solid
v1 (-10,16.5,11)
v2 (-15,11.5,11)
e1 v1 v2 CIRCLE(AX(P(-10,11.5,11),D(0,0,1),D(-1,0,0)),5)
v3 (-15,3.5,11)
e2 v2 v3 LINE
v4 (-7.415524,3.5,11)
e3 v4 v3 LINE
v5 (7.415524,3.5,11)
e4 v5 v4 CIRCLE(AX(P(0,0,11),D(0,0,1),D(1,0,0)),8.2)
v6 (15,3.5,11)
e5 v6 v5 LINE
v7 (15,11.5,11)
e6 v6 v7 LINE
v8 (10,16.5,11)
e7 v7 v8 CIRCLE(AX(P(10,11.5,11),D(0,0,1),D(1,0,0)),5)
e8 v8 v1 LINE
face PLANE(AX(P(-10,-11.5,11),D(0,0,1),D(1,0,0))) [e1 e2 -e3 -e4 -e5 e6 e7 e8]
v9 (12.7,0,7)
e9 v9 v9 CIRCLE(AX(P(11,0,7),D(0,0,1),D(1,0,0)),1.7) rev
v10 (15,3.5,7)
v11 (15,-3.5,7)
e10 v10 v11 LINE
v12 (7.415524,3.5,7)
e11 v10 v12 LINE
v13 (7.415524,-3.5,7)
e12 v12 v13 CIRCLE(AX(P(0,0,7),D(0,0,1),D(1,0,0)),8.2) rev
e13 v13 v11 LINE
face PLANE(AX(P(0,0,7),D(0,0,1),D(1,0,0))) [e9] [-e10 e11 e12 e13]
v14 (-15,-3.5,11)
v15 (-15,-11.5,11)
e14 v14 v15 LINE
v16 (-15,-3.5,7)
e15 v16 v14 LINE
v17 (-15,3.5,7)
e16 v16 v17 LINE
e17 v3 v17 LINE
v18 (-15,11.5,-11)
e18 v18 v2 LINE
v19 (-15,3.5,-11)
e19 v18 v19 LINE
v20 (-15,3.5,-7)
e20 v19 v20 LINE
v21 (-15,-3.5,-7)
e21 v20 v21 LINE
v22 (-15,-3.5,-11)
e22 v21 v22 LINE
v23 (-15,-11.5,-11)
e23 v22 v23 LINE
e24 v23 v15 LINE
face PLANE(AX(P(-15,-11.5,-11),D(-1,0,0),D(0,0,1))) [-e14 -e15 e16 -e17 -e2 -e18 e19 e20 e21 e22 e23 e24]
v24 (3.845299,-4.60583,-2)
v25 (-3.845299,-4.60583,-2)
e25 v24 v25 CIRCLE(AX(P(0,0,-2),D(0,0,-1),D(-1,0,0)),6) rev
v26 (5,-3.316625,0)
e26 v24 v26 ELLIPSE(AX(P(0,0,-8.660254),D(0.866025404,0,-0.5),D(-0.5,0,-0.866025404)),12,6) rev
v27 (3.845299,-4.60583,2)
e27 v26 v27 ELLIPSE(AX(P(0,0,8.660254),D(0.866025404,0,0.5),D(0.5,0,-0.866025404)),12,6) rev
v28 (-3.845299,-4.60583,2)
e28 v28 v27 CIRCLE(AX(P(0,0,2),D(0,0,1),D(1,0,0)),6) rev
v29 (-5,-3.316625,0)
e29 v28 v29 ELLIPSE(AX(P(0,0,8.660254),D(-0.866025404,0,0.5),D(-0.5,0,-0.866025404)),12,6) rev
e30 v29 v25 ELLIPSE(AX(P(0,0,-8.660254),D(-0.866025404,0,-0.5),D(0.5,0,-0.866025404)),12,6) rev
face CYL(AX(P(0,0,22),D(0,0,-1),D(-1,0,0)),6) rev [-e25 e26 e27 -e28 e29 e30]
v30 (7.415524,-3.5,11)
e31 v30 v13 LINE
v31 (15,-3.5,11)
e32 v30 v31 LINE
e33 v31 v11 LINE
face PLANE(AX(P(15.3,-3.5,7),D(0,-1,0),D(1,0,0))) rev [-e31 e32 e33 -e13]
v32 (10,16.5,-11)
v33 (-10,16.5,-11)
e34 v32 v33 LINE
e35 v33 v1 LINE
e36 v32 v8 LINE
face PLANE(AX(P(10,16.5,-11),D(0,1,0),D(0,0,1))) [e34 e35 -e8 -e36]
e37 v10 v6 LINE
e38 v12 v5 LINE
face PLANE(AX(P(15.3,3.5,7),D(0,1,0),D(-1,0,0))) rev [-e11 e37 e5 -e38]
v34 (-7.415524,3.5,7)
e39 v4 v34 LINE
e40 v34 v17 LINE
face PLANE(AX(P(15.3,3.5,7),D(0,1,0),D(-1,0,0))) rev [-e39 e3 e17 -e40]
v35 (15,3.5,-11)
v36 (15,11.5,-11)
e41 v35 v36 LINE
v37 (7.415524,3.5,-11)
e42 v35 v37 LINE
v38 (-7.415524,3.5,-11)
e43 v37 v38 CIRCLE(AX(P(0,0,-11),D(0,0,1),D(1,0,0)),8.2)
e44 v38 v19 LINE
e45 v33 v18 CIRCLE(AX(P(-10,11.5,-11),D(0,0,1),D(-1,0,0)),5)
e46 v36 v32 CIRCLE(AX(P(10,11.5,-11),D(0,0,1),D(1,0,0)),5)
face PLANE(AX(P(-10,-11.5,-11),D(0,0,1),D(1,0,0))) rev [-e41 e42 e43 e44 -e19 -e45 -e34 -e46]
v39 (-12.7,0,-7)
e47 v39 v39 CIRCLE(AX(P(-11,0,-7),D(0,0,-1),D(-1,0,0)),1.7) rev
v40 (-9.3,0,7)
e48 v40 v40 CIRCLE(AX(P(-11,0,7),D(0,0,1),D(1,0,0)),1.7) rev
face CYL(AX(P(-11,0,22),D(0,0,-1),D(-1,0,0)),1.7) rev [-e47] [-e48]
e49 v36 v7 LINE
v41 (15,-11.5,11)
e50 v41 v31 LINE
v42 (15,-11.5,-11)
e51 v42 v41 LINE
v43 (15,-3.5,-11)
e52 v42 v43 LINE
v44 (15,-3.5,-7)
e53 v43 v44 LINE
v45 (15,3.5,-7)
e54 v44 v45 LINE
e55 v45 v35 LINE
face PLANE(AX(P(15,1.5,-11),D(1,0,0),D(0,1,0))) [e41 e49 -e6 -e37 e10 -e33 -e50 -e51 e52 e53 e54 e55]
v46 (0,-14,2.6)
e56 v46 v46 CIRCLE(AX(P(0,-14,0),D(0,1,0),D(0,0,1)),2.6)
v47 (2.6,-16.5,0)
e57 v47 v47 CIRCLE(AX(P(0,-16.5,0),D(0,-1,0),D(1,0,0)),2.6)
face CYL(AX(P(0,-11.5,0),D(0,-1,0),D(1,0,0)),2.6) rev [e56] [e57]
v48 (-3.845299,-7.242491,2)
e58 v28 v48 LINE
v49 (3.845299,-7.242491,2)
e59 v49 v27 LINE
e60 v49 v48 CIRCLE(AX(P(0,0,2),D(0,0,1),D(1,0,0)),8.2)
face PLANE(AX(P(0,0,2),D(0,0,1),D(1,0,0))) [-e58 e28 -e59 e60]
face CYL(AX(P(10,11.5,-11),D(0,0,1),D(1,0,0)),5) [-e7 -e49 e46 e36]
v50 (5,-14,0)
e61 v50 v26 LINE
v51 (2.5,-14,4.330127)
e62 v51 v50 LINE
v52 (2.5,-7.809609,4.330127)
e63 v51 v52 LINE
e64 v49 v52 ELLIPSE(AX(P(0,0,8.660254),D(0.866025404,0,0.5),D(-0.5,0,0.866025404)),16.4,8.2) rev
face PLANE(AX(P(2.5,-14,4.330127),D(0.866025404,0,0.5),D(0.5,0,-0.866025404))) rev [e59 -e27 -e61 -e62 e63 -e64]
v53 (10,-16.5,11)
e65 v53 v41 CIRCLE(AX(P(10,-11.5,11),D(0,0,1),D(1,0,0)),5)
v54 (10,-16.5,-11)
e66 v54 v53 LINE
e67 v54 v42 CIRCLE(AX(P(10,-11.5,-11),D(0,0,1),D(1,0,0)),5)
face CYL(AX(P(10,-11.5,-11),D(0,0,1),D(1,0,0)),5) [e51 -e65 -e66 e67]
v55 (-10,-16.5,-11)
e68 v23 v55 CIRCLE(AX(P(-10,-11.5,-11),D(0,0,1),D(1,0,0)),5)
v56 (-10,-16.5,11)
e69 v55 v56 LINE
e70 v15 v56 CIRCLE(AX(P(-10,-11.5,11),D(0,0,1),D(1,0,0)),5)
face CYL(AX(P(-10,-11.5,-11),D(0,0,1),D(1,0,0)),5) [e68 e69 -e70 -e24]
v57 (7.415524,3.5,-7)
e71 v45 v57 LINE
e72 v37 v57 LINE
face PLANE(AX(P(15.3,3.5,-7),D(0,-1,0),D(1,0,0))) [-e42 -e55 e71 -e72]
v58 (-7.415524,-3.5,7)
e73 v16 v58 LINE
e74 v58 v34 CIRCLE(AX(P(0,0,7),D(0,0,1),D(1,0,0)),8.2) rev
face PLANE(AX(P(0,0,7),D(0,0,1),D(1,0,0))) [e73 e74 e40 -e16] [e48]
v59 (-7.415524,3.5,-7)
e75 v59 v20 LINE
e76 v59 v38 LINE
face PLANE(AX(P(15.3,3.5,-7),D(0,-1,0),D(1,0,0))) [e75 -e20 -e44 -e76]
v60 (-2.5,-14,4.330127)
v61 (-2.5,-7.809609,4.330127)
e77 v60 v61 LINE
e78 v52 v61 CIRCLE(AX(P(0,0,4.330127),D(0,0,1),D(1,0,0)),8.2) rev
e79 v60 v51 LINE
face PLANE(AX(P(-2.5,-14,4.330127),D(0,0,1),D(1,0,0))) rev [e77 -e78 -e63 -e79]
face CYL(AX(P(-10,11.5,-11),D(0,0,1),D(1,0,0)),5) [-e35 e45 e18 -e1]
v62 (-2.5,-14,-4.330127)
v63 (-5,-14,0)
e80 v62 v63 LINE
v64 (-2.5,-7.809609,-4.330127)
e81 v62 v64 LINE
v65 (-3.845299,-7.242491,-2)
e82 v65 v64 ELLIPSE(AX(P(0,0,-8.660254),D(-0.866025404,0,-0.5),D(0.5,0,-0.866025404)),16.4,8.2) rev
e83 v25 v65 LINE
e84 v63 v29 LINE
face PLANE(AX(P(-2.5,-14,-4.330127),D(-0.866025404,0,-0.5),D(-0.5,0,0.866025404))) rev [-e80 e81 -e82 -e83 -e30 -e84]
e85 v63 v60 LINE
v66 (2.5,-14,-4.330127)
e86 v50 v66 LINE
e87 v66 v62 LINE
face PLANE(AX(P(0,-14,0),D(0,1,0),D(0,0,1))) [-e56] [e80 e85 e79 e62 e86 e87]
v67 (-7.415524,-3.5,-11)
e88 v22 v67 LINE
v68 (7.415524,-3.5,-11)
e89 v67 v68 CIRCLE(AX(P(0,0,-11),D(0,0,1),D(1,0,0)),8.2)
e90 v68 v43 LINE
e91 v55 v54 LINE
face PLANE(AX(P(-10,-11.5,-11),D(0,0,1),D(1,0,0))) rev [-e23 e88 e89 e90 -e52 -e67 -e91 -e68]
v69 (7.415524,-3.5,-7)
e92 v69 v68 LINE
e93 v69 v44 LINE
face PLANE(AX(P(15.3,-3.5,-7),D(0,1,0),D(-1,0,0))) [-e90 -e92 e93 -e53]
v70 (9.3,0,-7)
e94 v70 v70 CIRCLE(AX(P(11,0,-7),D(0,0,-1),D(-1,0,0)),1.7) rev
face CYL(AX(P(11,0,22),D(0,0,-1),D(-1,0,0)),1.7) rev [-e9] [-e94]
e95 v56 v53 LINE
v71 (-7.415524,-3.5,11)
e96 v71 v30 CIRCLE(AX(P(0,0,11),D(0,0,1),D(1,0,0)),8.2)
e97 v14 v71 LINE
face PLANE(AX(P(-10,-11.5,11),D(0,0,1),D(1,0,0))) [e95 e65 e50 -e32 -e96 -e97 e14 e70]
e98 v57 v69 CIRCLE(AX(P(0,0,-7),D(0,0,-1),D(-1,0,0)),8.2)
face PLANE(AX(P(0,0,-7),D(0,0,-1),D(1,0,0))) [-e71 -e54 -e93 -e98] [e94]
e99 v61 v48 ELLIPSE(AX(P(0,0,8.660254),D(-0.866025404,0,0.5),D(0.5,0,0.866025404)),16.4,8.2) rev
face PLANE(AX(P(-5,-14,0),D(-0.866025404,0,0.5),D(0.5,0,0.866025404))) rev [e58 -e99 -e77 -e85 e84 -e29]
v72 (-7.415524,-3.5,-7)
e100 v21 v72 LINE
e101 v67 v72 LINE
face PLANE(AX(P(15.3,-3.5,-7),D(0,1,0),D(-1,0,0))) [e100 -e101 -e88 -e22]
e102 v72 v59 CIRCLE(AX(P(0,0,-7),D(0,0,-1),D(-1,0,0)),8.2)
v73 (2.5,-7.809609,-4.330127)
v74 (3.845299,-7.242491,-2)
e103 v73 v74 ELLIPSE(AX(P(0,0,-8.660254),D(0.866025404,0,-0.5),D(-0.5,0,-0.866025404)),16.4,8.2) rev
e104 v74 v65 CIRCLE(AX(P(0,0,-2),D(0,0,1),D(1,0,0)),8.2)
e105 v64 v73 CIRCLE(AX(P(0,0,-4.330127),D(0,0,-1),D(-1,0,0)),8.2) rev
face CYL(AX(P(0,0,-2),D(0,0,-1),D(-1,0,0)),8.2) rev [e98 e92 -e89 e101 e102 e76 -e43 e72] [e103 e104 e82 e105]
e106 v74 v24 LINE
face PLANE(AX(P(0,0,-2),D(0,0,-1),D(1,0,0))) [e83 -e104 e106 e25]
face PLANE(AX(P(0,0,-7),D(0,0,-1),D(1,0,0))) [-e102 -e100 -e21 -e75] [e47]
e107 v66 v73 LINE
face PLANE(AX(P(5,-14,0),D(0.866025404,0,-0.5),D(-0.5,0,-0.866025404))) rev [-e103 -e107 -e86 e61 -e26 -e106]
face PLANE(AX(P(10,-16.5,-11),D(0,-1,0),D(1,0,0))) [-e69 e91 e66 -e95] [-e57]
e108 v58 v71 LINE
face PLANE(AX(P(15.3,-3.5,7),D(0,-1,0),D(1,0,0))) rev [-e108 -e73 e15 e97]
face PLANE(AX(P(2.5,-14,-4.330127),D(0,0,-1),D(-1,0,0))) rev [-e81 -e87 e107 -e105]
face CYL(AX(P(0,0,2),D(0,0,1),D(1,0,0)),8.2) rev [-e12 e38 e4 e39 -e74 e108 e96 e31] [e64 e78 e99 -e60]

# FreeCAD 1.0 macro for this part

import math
import FreeCAD as App
import Part
import Sketcher
from FreeCAD import Vector
Q = App.Units.Quantity


def add_polygon(sketch, points):
    """Adds a closed chain of lines whose ends are joined by coincident constraints."""
    first, n = sketch.GeometryCount, len(points)
    for a, b in zip(points, points[1:] + points[:1]):
        sketch.addGeometry(Part.LineSegment(App.Vector(*a, 0), App.Vector(*b, 0)), False)
    for i in range(n):
        sketch.addConstraint(Sketcher.Constraint("Coincident", first + i, 2, first + (i + 1) % n, 1))

doc = App.newDocument("Part")
body = doc.addObject("PartDesign::Body", "Body")

# Sketch on XY plane
sketch1 = body.newObject("Sketcher::SketchObject", "Sketch")
sketch1.AttachmentSupport = (doc.getObject("XY_Plane"), [""])
sketch1.MapMode = "FlatFace"
sketch1.addGeometry([
    Part.ArcOfCircle(Part.Circle(Vector(-10, 12, 0), Vector(0, 0, 1), 5), math.radians(90), math.radians(180)),  # 0
    Part.LineSegment(Vector(-15, 12, 0), Vector(-15, -12, 0)),  # 1
    Part.ArcOfCircle(Part.Circle(Vector(-10, -12, 0), Vector(0, 0, 1), 5), math.radians(180), math.radians(270)),  # 2
    Part.LineSegment(Vector(-10, -16, 0), Vector(10, -16, 0)),  # 3
    Part.ArcOfCircle(Part.Circle(Vector(10, -12, 0), Vector(0, 0, 1), 5), math.radians(-90), math.radians(0)),  # 4
    Part.LineSegment(Vector(15, -12, 0), Vector(15, 12, 0)),  # 5
    Part.ArcOfCircle(Part.Circle(Vector(10, 12, 0), Vector(0, 0, 1), 5), math.radians(0), math.radians(90)),  # 6
    Part.LineSegment(Vector(10, 16, 0), Vector(-10, 16, 0)),  # 7
], False)
sketch1.addConstraint([
    Sketcher.Constraint("Tangent", 0, 2, 1, 1),
    Sketcher.Constraint("Tangent", 1, 2, 2, 1),
    Sketcher.Constraint("Tangent", 2, 2, 3, 1),
    Sketcher.Constraint("Tangent", 3, 2, 4, 1),
    Sketcher.Constraint("Tangent", 4, 2, 5, 1),
    Sketcher.Constraint("Tangent", 5, 2, 6, 1),
    Sketcher.Constraint("Tangent", 6, 2, 7, 1),
    Sketcher.Constraint("Tangent", 7, 2, 0, 1),
    Sketcher.Constraint("Vertical", 1),
    Sketcher.Constraint("Horizontal", 3),
    Sketcher.Constraint("Vertical", 5),
    Sketcher.Constraint("Horizontal", 7),
    Sketcher.Constraint("Equal", 0, 2),
    Sketcher.Constraint("Equal", 2, 4),
    Sketcher.Constraint("Equal", 4, 6),
    Sketcher.Constraint("Symmetric", 0, 3, 4, 3, -1, 1),
    Sketcher.Constraint("Radius", 0, 5.0),
    Sketcher.Constraint("DistanceX", 3, 1, 3, 2, 20.0),
    Sketcher.Constraint("DistanceY", 1, 2, 1, 1, 23.0),
])
pad1 = body.newObject("PartDesign::Pad", "Pad")
pad1.Profile = sketch1
pad1.Type = "TwoLengths"
pad1.Length = 11
pad1.Length2 = 11

# Sketch on XY plane
sketch2 = body.newObject("Sketcher::SketchObject", "Sketch001")
sketch2.AttachmentSupport = (doc.getObject("XY_Plane"), [""])
sketch2.MapMode = "FlatFace"
sketch2.AttachmentOffset = App.Placement(Vector(0, 0, -11), App.Rotation())
sketch2.addGeometry([
    Part.Circle(Vector(0, 0, 0), Vector(0, 0, 1), 6),
    Part.Circle(Vector(11, 0, 0), Vector(0, 0, 1), 1.7),
    Part.Circle(Vector(-11, 0, 0), Vector(0, 0, 1), 1.7),
], False)
sketch2.addConstraint([
    Sketcher.Constraint("Coincident", 0, 3, -1, 1),
    Sketcher.Constraint("Equal", 1, 2),
    Sketcher.Constraint("Symmetric", 1, 3, 2, 3, -1, 1),
    Sketcher.Constraint("PointOnObject", 1, 3, -1),
    Sketcher.Constraint("Diameter", 0, 12.0),
    Sketcher.Constraint("Diameter", 1, 3.4),
    Sketcher.Constraint("DistanceX", -1, 1, 1, 3, 11.0),
])
pocket1 = body.newObject("PartDesign::Pocket", "Pocket")
pocket1.Profile = sketch2
pocket1.Length = 33
pocket1.Reversed = True

# Sketch on XY plane
sketch3 = body.newObject("Sketcher::SketchObject", "Sketch002")
sketch3.AttachmentSupport = (doc.getObject("XY_Plane"), [""])
sketch3.MapMode = "FlatFace"
sketch3.AttachmentOffset = App.Placement(Vector(0, 0, 11), App.Rotation())
sketch3.addGeometry(Part.Circle(Vector(0, 0, 0), Vector(0, 0, 1), 8), False)
sketch3.addConstraint([
    Sketcher.Constraint("Coincident", 0, 3, -1, 1),
    Sketcher.Constraint("Diameter", 0, 16.4),
])
pocket2 = body.newObject("PartDesign::Pocket", "Pocket001")
pocket2.Profile = sketch3
pocket2.Length = 9

# Sketch on XY plane
sketch4 = body.newObject("Sketcher::SketchObject", "Sketch003")
sketch4.AttachmentSupport = (doc.getObject("XY_Plane"), [""])
sketch4.MapMode = "FlatFace"
sketch4.AttachmentOffset = App.Placement(Vector(0, 0, 11), App.Rotation())
add_polygon(sketch4, [(-15, 4), (-15, -4), (15, -4), (15, 4)])  # lines 0-3
sketch4.addConstraint([
    Sketcher.Constraint("Vertical", 0),
    Sketcher.Constraint("Horizontal", 1),
    Sketcher.Constraint("Vertical", 2),
    Sketcher.Constraint("Horizontal", 3),
    Sketcher.Constraint("Symmetric", 0, 2, 2, 2, -1, 1),
    Sketcher.Constraint("DistanceY", 0, 2, 0, 1, 7.0),
    Sketcher.Constraint("DistanceX", 1, 1, 1, 2, 30.6),
])
pocket3 = body.newObject("PartDesign::Pocket", "Pocket002")
pocket3.Profile = sketch4
pocket3.Length = 4

# Sketch on XZ plane
sketch5 = body.newObject("Sketcher::SketchObject", "Sketch004")
sketch5.AttachmentSupport = (doc.getObject("XZ_Plane"), [""])
sketch5.MapMode = "FlatFace"
add_polygon(sketch5, [(5, 0), (2, -4), (-2, -4), (-5, 0), (-2, 4), (2, 4)])  # lines 0-5
sketch5.addConstraint([
    Sketcher.Constraint("Horizontal", 1),
    Sketcher.Constraint("Horizontal", 4),
    Sketcher.Constraint("Symmetric", 0, 2, 3, 2, -1, 1),
    Sketcher.Constraint("Symmetric", 2, 2, 5, 2, -1, 1),
    Sketcher.Constraint("PointOnObject", 2, 2, -1),
    Sketcher.Constraint("Parallel", 2, 5),
    Sketcher.Constraint("Vertical", 1, 2, 3, 2),
    Sketcher.Constraint("DistanceX", 1, 2, 1, 1, 5.0),
    Sketcher.Constraint("Angle", 0, Q("-120 deg")),
    Sketcher.Constraint("Distance", 0, 5.0),
])
pocket4 = body.newObject("PartDesign::Pocket", "Pocket003")
pocket4.Profile = sketch5
pocket4.Length = 14
pocket4.Reversed = True

# Sketch on XZ plane
sketch6 = body.newObject("Sketcher::SketchObject", "Sketch005")
sketch6.AttachmentSupport = (doc.getObject("XZ_Plane"), [""])
sketch6.MapMode = "FlatFace"
sketch6.AttachmentOffset = App.Placement(Vector(0, 0, 16.5), App.Rotation())
sketch6.addGeometry(Part.Circle(Vector(0, 0, 0), Vector(0, 0, 1), 2.6), False)
sketch6.addConstraint([
    Sketcher.Constraint("Coincident", 0, 3, -1, 1),
    Sketcher.Constraint("Diameter", 0, 5.2),
])
pocket5 = body.newObject("PartDesign::Pocket", "Pocket004")
pocket5.Profile = sketch6
pocket5.Length = 5
doc.recompute()

mirrored = body.newObject("PartDesign::Mirrored", "Mirrored")
mirrored.Originals = [pocket2, pocket3]
mirrored.MirrorPlane = (doc.getObject("XY_Plane"), [""])
body.Tip = mirrored

doc.recompute()
